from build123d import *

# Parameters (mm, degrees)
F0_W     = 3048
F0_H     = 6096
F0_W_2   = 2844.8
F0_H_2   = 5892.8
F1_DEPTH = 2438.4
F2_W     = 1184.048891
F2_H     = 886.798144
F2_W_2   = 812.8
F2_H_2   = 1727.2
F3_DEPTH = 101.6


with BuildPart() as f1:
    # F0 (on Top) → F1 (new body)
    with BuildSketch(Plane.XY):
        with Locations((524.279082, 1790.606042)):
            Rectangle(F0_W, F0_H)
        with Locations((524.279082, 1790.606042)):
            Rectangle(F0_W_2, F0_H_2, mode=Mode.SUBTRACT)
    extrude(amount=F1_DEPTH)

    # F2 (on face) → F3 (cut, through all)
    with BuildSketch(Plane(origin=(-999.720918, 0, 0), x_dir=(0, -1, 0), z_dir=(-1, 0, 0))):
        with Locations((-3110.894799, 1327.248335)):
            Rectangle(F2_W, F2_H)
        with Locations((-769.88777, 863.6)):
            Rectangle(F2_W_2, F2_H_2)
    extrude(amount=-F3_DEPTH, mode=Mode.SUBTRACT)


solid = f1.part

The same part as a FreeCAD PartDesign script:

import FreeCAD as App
import Part
import Sketcher
Q = App.Units.Quantity


def add_polygon(sketch, points):
    """Adds a closed chain of lines whose ends are joined by coincident constraints."""
    first, n = sketch.GeometryCount, len(points)
    for a, b in zip(points, points[1:] + points[:1]):
        sketch.addGeometry(Part.LineSegment(App.Vector(*a, 0), App.Vector(*b, 0)), False)
    for i in range(n):
        sketch.addConstraint(Sketcher.Constraint("Coincident", first + i, 2, first + (i + 1) % n, 1))

doc = App.newDocument("Part")
body = doc.addObject("PartDesign::Body", "Body")

sketch1 = doc.addObject("Sketcher::SketchObject", "Sketch")
body.addObject(sketch1)
sketch1.AttachmentSupport = (doc.XY_Plane, [""])
sketch1.MapMode = "FlatFace"
add_polygon(sketch1, [(-1000, 4839), (-1000, -1257), (2048, -1257), (2048, 4839)])
add_polygon(sketch1, [(1947, -1156), (-898, -1156), (-898, 4737), (1947, 4737)])
sketch1.addConstraint([
    Sketcher.Constraint("Vertical", 0),
    Sketcher.Constraint("Horizontal", 1),
    Sketcher.Constraint("Vertical", 2),
    Sketcher.Constraint("Horizontal", 3),
    Sketcher.Constraint("Horizontal", 4),
    Sketcher.Constraint("Vertical", 5),
    Sketcher.Constraint("Horizontal", 6),
    Sketcher.Constraint("Vertical", 7),
    Sketcher.Constraint("DistanceX", 1, 1, 1, 2, Q("120 in")),
    Sketcher.Constraint("DistanceX", 4, 2, 4, 1, Q("112 in")),
    Sketcher.Constraint("DistanceY", 0, 2, 0, 1, Q("240 in")),
    Sketcher.Constraint("DistanceY", 5, 1, 5, 2, Q("232 in")),
    Sketcher.Constraint("DistanceX", 0, 2, 4, 2, Q("4 in")),
    Sketcher.Constraint("DistanceY", 0, 2, 4, 2, Q("4 in")),
    Sketcher.Constraint("DistanceX", 0, 2, -1, 1, Q("999.720918 mm")),
    Sketcher.Constraint("DistanceY", 0, 2, -1, 1, Q("1257.393958 mm")),
])
pad1 = doc.addObject("PartDesign::Pad", "Pad")
body.addObject(pad1)
pad1.Profile = sketch1
pad1.Length = Q("96 in")

sketch2 = doc.addObject("Sketcher::SketchObject", "Sketch001")
body.addObject(sketch2)
sketch2.AttachmentSupport = (doc.YZ_Plane, [""])
sketch2.MapMode = "FlatFace"
sketch2.AttachmentOffset = App.Placement(App.Vector(0, 0, -999.720918), App.Rotation())
add_polygon(sketch2, [(3703, 1771), (3703, 884), (2519, 884), (2519, 1771)])
add_polygon(sketch2, [(1176, 1727), (1176, 0), (363, 0), (363, 1727)])
sketch2.addConstraint([
    Sketcher.Constraint("Vertical", 0),
    Sketcher.Constraint("Horizontal", 1),
    Sketcher.Constraint("Vertical", 2),
    Sketcher.Constraint("Horizontal", 3),
    Sketcher.Constraint("Vertical", 4),
    Sketcher.Constraint("Horizontal", 5),
    Sketcher.Constraint("Vertical", 6),
    Sketcher.Constraint("Horizontal", 7),
    Sketcher.Constraint("PointOnObject", 4, 2, -1),
    Sketcher.Constraint("DistanceX", 5, 2, 5, 1, Q("32 in")),
    Sketcher.Constraint("DistanceY", 4, 2, 4, 1, Q("68 in")),
    Sketcher.Constraint("DistanceX", 1, 2, 1, 1, Q("1184.048891 mm")),
    Sketcher.Constraint("DistanceY", 0, 2, 0, 1, Q("886.798144 mm")),
    Sketcher.Constraint("DistanceX", -1, 1, 4, 2, Q("1176.28777 mm")),
    Sketcher.Constraint("DistanceX", -1, 1, 0, 2, Q("3702.919244 mm")),
    Sketcher.Constraint("DistanceY", -1, 1, 0, 2, Q("883.849263 mm")),
])
pocket1 = doc.addObject("PartDesign::Pocket", "Pocket")
body.addObject(pocket1)
pocket1.Profile = sketch2
pocket1.Length = Q("4 in")
pocket1.Reversed = True

doc.recompute()
